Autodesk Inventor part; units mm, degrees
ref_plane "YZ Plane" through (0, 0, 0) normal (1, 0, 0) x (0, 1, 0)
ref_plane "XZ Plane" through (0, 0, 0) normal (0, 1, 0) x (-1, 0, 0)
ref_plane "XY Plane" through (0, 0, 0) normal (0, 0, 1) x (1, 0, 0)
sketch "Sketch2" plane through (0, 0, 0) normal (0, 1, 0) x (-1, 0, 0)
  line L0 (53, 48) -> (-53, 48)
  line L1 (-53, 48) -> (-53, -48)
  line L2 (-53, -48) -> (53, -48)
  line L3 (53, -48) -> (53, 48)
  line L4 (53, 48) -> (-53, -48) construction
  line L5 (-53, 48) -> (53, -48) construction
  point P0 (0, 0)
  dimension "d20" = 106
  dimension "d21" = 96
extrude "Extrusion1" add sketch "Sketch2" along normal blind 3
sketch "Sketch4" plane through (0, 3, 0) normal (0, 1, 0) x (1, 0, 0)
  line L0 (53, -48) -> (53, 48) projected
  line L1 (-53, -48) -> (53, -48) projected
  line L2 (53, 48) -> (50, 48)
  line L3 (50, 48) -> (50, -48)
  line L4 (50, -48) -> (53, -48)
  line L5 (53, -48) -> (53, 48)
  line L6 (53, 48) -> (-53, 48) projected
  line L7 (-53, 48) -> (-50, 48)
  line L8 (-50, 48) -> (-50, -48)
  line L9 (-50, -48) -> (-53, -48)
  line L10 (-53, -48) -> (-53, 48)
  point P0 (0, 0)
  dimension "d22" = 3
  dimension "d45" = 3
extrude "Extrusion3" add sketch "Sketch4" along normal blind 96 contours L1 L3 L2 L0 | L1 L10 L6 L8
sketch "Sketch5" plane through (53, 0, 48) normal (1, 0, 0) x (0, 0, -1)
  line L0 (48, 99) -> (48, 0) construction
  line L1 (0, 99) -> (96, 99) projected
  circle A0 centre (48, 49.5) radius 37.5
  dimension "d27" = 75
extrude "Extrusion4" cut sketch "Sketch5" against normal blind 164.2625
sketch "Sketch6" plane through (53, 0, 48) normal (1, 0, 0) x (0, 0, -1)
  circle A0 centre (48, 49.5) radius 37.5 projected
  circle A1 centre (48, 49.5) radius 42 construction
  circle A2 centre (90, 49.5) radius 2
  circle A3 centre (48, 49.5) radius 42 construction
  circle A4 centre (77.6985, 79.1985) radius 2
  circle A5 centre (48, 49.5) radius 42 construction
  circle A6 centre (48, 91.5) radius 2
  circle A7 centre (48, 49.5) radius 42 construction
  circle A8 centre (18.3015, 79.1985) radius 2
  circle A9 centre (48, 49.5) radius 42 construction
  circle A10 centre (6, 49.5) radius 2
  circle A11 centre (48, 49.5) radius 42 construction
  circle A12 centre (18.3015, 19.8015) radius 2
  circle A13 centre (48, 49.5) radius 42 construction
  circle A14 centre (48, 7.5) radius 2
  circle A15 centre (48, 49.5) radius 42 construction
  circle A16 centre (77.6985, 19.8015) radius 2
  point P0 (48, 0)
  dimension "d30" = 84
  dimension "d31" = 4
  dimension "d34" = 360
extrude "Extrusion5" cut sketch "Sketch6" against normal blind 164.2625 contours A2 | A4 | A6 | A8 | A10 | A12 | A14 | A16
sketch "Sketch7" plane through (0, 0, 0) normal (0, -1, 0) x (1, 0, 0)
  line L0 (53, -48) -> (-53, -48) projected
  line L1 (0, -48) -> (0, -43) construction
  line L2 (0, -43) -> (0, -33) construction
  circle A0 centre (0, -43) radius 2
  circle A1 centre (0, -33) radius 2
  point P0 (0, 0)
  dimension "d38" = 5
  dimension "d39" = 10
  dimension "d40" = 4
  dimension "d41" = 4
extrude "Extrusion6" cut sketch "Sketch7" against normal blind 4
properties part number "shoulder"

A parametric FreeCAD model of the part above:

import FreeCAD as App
import Part
import Sketcher

V = App.Vector


def add_polygon(sketch, points):
    """Adds a closed chain of lines whose ends are joined by coincident constraints."""
    first, n = sketch.GeometryCount, len(points)
    for a, b in zip(points, points[1:] + points[:1]):
        sketch.addGeometry(Part.LineSegment(App.Vector(*a, 0), App.Vector(*b, 0)), False)
    for i in range(n):
        sketch.addConstraint(Sketcher.Constraint("Coincident", first + i, 2, first + (i + 1) % n, 1))

doc = App.newDocument("Part")
body = doc.addObject("PartDesign::Body", "Body")

# Sketch on XZ plane
sketch1 = body.newObject("Sketcher::SketchObject", "Sketch")
sketch1.AttachmentSupport = (doc.getObject("XZ_Plane"), [""])
sketch1.MapMode = "FlatFace"
add_polygon(sketch1, [(-53, -48), (-53, 48), (53, 48), (53, -48)])  # lines 0-3
sketch1.addConstraint([
    Sketcher.Constraint("Vertical", 0),
    Sketcher.Constraint("Horizontal", 1),
    Sketcher.Constraint("Vertical", 2),
    Sketcher.Constraint("Horizontal", 3),
    Sketcher.Constraint("Symmetric", 0, 2, 2, 2, -1, 1),
    Sketcher.Constraint("DistanceX", 1, 1, 1, 2, 106.0),
    Sketcher.Constraint("DistanceY", 0, 1, 0, 2, 96.0),
])
pad1 = body.newObject("PartDesign::Pad", "Pad")
pad1.Profile = sketch1
pad1.Length = 3
pad1.Reversed = True

# Sketch on XZ plane
sketch2 = body.newObject("Sketcher::SketchObject", "Sketch001")
sketch2.AttachmentSupport = (doc.getObject("XZ_Plane"), [""])
sketch2.MapMode = "FlatFace"
sketch2.AttachmentOffset = App.Placement(V(0, 0, -3), App.Rotation())
add_polygon(sketch2, [(50, 48), (53, 48), (53, -48), (50, -48)])  # lines 0-3
add_polygon(sketch2, [(-53, 48), (-50, 48), (-50, -48), (-53, -48)])  # lines 4-7
sketch2.addConstraint([
    Sketcher.Constraint("Horizontal", 0),
    Sketcher.Constraint("Vertical", 1),
    Sketcher.Constraint("Horizontal", 2),
    Sketcher.Constraint("Vertical", 3),
    Sketcher.Constraint("Horizontal", 4),
    Sketcher.Constraint("Vertical", 5),
    Sketcher.Constraint("Horizontal", 6),
    Sketcher.Constraint("Vertical", 7),
    Sketcher.Constraint("Symmetric", 2, 2, 4, 2, -1, 1),
    Sketcher.Constraint("Symmetric", 0, 2, 6, 2, -1, 1),
    Sketcher.Constraint("Horizontal", 3, 2, 4, 2),
    Sketcher.Constraint("DistanceX", 0, 1, 0, 2, 3.0),
    Sketcher.Constraint("DistanceY", 1, 2, 1, 1, 96.0),
    Sketcher.Constraint("DistanceX", -1, 1, 0, 2, 53.0),
])
pad2 = body.newObject("PartDesign::Pad", "Pad001")
pad2.Profile = sketch2
pad2.Length = 96
pad2.Reversed = True

# Sketch on YZ plane
sketch3 = body.newObject("Sketcher::SketchObject", "Sketch002")
sketch3.AttachmentSupport = (doc.getObject("YZ_Plane"), [""])
sketch3.MapMode = "FlatFace"
sketch3.AttachmentOffset = App.Placement(V(0, 0, 53), App.Rotation())
sketch3.addGeometry(Part.Circle(V(49.5, 0, 0), V(0, 0, 1), 37.5), False)
sketch3.addConstraint([
    Sketcher.Constraint("PointOnObject", 0, 3, -1),
    Sketcher.Constraint("Diameter", 0, 75.0),
    Sketcher.Constraint("DistanceX", -1, 1, 0, 3, 49.5),
])
pocket1 = body.newObject("PartDesign::Pocket", "Pocket")
pocket1.Profile = sketch3
pocket1.Length = 164.2625

# Sketch on YZ plane
sketch4 = body.newObject("Sketcher::SketchObject", "Sketch003")
sketch4.AttachmentSupport = (doc.getObject("YZ_Plane"), [""])
sketch4.MapMode = "FlatFace"
sketch4.AttachmentOffset = App.Placement(V(0, 0, 53), App.Rotation())
sketch4.addGeometry([
    Part.Circle(V(49.5, -42, 0), V(0, 0, 1), 2),  # 0
    Part.Circle(V(79.1985, -29.6985, 0), V(0, 0, 1), 2),  # 1
    Part.Circle(V(91.5, 0, 0), V(0, 0, 1), 2),  # 2
    Part.Circle(V(79.1985, 29.6985, 0), V(0, 0, 1), 2),  # 3
    Part.Circle(V(49.5, 42, 0), V(0, 0, 1), 2),  # 4
    Part.Circle(V(19.8015, 29.6985, 0), V(0, 0, 1), 2),  # 5
    Part.Circle(V(7.5, 0, 0), V(0, 0, 1), 2),  # 6
    Part.Circle(V(19.8015, -29.6985, 0), V(0, 0, 1), 2),  # 7
], False)
sketch4.addConstraint([
    Sketcher.Constraint("Equal", 0, 1),
    Sketcher.Constraint("Equal", 1, 2),
    Sketcher.Constraint("Equal", 2, 3),
    Sketcher.Constraint("Equal", 3, 4),
    Sketcher.Constraint("Equal", 4, 5),
    Sketcher.Constraint("Equal", 5, 6),
    Sketcher.Constraint("Equal", 6, 7),
    Sketcher.Constraint("Symmetric", 1, 3, 3, 3, -1),
    Sketcher.Constraint("Symmetric", 0, 3, 4, 3, -1),
    Sketcher.Constraint("Symmetric", 5, 3, 7, 3, -1),
    Sketcher.Constraint("PointOnObject", 2, 3, -1),
    Sketcher.Constraint("PointOnObject", 6, 3, -1),
    Sketcher.Constraint("Horizontal", 3, 3, 5, 3),
    Sketcher.Constraint("Diameter", 0, 4.0),
    Sketcher.Constraint("DistanceY", 0, 3, 4, 3, 84.0),
    Sketcher.Constraint("DistanceX", 0, 3, 2, 3, 42.0),
    Sketcher.Constraint("DistanceX", 6, 3, 0, 3, 42.0),
    Sketcher.Constraint("DistanceX", -1, 1, 0, 3, 49.5),
    Sketcher.Constraint("DistanceY", 1, 3, 3, 3, 59.397),
    Sketcher.Constraint("DistanceX", 5, 3, 3, 3, 59.397),
    Sketcher.Constraint("DistanceX", -1, 1, 1, 3, 79.1985),
])
pocket2 = body.newObject("PartDesign::Pocket", "Pocket001")
pocket2.Profile = sketch4
pocket2.Length = 164.2625

# Sketch on XZ plane
sketch5 = body.newObject("Sketcher::SketchObject", "Sketch004")
sketch5.AttachmentSupport = (doc.getObject("XZ_Plane"), [""])
sketch5.MapMode = "FlatFace"
sketch5.addGeometry([
    Part.Circle(V(0, -43, 0), V(0, 0, 1), 2),
    Part.Circle(V(0, -33, 0), V(0, 0, 1), 2),
], False)
sketch5.addConstraint([
    Sketcher.Constraint("Equal", 0, 1),
    Sketcher.Constraint("PointOnObject", 0, 3, -2),
    Sketcher.Constraint("PointOnObject", 1, 3, -2),
    Sketcher.Constraint("Diameter", 0, 4.0),
    Sketcher.Constraint("DistanceY", 0, 3, 1, 3, 10.0),
    Sketcher.Constraint("DistanceY", 0, 3, -1, 1, 43.0),
])
pocket3 = body.newObject("PartDesign::Pocket", "Pocket002")
pocket3.Profile = sketch5
pocket3.Length = 4

doc.recompute()
